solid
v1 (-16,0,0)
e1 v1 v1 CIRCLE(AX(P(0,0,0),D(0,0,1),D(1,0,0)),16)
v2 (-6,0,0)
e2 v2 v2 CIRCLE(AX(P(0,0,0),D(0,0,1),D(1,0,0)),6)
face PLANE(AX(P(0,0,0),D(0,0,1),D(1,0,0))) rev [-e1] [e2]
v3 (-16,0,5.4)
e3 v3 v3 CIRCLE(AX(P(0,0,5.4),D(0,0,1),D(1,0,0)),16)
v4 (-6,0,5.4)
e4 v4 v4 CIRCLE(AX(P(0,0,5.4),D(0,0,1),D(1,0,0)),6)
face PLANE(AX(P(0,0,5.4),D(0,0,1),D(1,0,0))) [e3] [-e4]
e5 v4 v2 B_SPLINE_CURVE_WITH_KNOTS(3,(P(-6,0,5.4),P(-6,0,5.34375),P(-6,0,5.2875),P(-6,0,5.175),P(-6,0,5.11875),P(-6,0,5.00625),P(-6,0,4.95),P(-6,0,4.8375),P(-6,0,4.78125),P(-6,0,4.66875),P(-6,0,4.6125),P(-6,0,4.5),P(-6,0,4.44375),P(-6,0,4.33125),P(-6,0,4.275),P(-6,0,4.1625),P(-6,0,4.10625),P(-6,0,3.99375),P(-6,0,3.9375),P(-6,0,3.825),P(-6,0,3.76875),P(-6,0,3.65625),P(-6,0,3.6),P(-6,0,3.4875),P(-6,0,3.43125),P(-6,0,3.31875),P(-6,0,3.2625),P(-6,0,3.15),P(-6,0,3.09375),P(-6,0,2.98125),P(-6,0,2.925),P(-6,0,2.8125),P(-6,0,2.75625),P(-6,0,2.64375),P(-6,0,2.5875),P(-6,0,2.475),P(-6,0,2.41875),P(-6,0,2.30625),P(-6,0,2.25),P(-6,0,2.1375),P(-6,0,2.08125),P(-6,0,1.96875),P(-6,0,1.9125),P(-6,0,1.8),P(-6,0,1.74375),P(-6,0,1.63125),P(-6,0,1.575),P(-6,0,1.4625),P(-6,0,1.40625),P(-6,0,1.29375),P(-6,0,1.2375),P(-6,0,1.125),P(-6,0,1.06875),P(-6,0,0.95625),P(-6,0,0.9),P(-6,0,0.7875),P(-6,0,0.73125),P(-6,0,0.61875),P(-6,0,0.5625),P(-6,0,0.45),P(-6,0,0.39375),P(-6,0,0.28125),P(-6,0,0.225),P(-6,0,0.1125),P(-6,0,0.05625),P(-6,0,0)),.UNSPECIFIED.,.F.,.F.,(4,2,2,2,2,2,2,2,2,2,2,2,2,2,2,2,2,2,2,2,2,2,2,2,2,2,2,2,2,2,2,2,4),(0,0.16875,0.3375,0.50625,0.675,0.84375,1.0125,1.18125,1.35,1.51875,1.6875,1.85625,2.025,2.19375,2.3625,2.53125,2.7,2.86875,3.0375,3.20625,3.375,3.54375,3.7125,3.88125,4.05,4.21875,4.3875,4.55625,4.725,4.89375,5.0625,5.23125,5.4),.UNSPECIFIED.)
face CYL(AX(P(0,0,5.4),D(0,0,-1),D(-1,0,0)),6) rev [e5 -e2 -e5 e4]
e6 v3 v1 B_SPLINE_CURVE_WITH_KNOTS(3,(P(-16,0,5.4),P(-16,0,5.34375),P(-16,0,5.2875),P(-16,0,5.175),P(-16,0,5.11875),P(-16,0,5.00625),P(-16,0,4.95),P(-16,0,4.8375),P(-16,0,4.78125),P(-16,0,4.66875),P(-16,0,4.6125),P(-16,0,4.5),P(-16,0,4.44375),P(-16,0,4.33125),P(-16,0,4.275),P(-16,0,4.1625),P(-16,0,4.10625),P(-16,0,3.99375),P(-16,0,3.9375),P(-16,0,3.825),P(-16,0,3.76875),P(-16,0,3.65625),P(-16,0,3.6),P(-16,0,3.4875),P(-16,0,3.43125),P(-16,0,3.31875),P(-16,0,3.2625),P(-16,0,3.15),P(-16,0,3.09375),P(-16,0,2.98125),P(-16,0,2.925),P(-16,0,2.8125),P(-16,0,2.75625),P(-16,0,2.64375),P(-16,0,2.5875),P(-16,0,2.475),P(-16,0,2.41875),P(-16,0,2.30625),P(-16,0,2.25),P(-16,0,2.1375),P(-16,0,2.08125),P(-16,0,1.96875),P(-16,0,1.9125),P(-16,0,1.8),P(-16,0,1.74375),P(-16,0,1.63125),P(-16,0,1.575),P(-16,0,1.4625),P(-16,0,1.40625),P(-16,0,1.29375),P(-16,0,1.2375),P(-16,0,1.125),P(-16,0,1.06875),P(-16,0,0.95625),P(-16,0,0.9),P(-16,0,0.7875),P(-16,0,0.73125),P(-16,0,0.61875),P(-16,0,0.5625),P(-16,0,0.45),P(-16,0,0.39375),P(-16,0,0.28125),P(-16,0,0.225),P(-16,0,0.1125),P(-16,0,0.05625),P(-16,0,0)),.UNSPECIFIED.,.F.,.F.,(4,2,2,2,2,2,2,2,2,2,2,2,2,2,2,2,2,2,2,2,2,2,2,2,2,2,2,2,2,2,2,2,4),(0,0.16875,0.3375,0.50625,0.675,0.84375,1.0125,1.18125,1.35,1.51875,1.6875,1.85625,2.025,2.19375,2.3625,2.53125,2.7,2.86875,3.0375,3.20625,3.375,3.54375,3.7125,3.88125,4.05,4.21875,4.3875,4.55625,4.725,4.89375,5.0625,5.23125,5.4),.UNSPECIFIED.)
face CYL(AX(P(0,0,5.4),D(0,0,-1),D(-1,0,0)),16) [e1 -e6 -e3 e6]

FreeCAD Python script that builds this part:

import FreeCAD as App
import Part
import Sketcher
Q = App.Units.Quantity

doc = App.newDocument("Part")
params = doc.addObject("Spreadsheet::Sheet", "Params")
for row, (alias, value) in enumerate([
    ("sketch1_diameter", "32 mm"),
    ("sketch1_diameter2", "12 mm"),
    ("pad1_length", "5.4 mm"),
], start=1):
    params.set(f"A{row}", alias)
    params.set(f"B{row}", "=" + value)
    params.setAlias(f"B{row}", alias)

body = doc.addObject("PartDesign::Body", "Body")

# Sketch on XY plane
sketch1 = doc.addObject("Sketcher::SketchObject", "Sketch")
body.addObject(sketch1)
sketch1.AttachmentSupport = (doc.XY_Plane, [""])
sketch1.MapMode = "FlatFace"
sketch1.addGeometry(Part.Circle(App.Vector(0, 0, 0), App.Vector(0, 0, 1), 16), False)
sketch1.addGeometry(Part.Circle(App.Vector(0, 0, 0), App.Vector(0, 0, 1), 6), False)
sketch1.addConstraint(Sketcher.Constraint("Coincident", 0, 3, -1, 1))
sketch1.addConstraint(Sketcher.Constraint("Coincident", 1, 3, -1, 1))
sketch1.addConstraint(Sketcher.Constraint("Diameter", 0, Q("32 mm")))
sketch1.addConstraint(Sketcher.Constraint("Diameter", 1, Q("12 mm")))
sketch1.setExpression("Constraints[2]", "Params.sketch1_diameter")
sketch1.setExpression("Constraints[3]", "Params.sketch1_diameter2")
pad1 = doc.addObject("PartDesign::Pad", "Pad")
body.addObject(pad1)
pad1.Profile = sketch1
pad1.setExpression("Length", "Params.pad1_length")

doc.recompute()
